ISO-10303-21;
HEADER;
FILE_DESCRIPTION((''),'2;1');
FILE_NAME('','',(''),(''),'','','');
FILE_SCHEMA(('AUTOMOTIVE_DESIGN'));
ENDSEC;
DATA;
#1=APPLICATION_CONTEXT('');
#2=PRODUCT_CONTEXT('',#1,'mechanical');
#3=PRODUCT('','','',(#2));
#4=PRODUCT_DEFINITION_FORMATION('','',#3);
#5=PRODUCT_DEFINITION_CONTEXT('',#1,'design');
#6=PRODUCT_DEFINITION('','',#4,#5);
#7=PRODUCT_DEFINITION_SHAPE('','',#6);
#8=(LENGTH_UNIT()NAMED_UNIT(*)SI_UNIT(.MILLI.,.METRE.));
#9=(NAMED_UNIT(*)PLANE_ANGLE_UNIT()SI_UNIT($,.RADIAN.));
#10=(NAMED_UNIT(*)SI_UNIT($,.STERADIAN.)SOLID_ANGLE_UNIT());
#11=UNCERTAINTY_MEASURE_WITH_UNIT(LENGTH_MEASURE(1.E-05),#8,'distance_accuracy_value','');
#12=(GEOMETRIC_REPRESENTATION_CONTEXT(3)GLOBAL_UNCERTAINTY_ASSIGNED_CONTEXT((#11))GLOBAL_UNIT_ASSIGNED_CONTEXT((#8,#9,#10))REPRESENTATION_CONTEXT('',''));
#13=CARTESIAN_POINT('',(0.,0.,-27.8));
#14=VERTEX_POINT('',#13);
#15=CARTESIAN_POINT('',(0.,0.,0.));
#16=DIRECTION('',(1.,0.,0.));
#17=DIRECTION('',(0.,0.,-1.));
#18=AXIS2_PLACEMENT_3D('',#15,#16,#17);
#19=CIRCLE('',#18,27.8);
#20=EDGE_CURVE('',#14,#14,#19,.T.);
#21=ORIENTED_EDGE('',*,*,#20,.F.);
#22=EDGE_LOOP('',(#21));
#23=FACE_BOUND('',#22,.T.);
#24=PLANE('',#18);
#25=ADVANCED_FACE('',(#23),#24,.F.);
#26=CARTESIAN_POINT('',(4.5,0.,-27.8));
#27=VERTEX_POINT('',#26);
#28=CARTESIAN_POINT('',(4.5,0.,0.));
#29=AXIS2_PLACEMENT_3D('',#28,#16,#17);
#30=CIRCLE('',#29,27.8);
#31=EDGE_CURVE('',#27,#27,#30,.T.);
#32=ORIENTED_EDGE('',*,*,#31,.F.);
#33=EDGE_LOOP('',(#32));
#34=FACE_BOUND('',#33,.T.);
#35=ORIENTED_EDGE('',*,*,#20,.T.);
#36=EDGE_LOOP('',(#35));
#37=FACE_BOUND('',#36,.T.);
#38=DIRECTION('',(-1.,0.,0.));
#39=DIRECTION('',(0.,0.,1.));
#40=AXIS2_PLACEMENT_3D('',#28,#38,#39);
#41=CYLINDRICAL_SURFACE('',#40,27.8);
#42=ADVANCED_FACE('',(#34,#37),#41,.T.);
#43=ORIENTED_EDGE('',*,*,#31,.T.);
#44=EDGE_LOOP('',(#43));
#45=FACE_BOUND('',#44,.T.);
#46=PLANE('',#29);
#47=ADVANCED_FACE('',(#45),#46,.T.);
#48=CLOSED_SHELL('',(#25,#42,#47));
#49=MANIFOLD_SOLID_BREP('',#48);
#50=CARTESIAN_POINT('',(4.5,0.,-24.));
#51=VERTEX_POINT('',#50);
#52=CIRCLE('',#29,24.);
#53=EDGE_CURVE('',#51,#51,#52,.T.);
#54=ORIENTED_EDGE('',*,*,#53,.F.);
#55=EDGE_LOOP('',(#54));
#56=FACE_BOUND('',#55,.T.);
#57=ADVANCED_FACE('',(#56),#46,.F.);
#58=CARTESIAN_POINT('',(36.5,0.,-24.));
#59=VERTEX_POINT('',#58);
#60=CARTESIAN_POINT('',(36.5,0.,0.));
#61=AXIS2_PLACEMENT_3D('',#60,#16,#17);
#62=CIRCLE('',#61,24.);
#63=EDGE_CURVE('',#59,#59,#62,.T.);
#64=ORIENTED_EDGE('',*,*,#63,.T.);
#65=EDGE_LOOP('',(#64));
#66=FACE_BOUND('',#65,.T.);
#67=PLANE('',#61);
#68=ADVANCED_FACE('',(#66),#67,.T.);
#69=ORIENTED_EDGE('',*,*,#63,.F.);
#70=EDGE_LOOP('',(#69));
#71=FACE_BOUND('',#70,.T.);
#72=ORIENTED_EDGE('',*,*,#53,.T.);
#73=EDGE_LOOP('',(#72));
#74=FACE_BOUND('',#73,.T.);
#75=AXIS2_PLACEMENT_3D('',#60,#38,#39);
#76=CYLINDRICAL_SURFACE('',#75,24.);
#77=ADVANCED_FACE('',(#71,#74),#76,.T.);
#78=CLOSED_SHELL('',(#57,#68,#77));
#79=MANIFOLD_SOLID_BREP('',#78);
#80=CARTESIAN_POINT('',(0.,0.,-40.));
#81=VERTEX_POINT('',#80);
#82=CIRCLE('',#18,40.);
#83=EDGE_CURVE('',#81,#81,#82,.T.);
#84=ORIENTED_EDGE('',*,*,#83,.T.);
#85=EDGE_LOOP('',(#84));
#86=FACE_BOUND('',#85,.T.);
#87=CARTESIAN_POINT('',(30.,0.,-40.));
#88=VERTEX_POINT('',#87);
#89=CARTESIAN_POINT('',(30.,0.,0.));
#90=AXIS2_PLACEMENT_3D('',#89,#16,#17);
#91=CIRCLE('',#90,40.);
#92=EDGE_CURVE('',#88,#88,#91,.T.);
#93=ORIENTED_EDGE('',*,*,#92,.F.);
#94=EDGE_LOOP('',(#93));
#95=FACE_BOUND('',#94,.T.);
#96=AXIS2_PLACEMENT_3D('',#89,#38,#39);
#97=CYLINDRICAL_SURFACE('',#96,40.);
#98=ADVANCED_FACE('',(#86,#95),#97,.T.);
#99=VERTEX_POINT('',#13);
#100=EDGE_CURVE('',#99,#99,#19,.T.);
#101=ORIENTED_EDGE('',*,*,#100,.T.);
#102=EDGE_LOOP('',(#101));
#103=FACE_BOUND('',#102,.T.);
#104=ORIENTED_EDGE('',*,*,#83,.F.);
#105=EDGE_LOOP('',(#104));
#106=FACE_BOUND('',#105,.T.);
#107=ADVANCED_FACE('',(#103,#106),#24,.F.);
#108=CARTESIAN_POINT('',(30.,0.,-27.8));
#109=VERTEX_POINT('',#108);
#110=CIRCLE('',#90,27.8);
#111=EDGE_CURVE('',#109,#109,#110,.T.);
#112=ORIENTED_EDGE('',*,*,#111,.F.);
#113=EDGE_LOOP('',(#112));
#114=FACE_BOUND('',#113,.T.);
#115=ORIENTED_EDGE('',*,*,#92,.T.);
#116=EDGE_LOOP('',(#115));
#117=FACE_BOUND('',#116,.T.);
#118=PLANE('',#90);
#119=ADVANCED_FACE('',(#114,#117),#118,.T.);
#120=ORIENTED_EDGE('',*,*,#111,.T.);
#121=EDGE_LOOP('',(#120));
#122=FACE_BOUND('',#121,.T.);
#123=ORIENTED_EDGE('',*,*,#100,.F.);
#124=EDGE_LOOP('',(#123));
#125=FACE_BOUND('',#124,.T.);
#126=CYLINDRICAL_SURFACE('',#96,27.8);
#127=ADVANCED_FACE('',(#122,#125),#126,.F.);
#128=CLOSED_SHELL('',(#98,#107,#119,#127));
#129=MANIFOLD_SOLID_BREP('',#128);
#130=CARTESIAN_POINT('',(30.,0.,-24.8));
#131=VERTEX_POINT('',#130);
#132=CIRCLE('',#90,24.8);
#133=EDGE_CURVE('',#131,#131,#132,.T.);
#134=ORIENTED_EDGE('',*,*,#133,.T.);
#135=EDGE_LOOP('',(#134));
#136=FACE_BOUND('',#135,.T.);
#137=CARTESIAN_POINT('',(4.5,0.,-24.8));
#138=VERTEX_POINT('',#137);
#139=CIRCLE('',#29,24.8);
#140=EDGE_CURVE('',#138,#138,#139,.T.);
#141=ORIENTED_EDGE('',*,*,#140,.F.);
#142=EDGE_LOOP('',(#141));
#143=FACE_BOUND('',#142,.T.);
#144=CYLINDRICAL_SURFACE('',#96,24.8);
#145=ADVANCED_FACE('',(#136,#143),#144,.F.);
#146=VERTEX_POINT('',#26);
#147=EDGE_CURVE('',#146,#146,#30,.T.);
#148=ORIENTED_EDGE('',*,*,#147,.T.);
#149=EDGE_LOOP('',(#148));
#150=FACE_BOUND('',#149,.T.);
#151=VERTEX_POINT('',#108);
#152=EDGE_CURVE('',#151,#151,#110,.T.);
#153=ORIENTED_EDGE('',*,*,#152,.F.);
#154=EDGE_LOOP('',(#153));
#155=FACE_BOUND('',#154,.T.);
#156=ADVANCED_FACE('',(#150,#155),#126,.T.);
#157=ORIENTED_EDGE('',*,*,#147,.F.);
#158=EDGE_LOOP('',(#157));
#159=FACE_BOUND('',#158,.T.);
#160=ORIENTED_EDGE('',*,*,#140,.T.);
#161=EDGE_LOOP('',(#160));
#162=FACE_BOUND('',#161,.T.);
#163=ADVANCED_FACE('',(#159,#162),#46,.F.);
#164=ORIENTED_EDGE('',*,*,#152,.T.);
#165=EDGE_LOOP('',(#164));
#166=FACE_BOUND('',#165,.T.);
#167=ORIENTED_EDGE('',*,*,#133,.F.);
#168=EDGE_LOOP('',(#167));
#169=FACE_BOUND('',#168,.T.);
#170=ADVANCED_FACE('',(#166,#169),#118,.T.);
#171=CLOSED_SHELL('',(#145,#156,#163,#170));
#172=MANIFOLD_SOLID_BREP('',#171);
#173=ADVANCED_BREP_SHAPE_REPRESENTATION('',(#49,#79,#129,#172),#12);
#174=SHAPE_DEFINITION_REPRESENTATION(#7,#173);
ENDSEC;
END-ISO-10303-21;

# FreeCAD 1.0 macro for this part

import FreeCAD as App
import Part
import Sketcher
Q = App.Units.Quantity

doc = App.newDocument("Part")
body = doc.addObject("PartDesign::Body", "Body")

sketch1 = body.newObject("Sketcher::SketchObject", "Sketch")
sketch1.AttachmentSupport = (doc.getObject("YZ_Plane"), [""])
sketch1.MapMode = "FlatFace"
sketch1.addGeometry(Part.Circle(App.Vector(0, 0, 0), App.Vector(0, 0, 1), 27.8), False)
sketch1.addConstraint([
    Sketcher.Constraint("Coincident", 0, 3, -1, 1),
    Sketcher.Constraint("Diameter", 0, Q("55.6 mm")),
])
pad1 = body.newObject("PartDesign::Pad", "Pad")
pad1.Profile = sketch1
pad1.Length = 4.5
body2 = doc.addObject("PartDesign::Body", "Body001")

sketch2 = body2.newObject("Sketcher::SketchObject", "Sketch001")
sketch2.AttachmentSupport = (doc.getObject("YZ_Plane001"), [""])
sketch2.MapMode = "FlatFace"
sketch2.AttachmentOffset = App.Placement(App.Vector(0, 0, 4.5), App.Rotation())
sketch2.addGeometry([
    Part.Circle(App.Vector(0, 0, 0), App.Vector(0, 0, 1), 27.8),
    Part.Circle(App.Vector(0, 0, 0), App.Vector(0, 0, 1), 24.8),
], False)
sketch2.addConstraint([
    Sketcher.Constraint("Coincident", 0, 3, -1, 1),
    Sketcher.Constraint("Coincident", 1, 3, -1, 1),
    Sketcher.Constraint("Diameter", 0, Q("55.6 mm")),
    Sketcher.Constraint("Diameter", 1, Q("49.6 mm")),
])
pad2 = body2.newObject("PartDesign::Pad", "Pad001")
pad2.Profile = sketch2
pad2.Length = 25.5
body3 = doc.addObject("PartDesign::Body", "Body002")

sketch3 = body3.newObject("Sketcher::SketchObject", "Sketch002")
sketch3.AttachmentSupport = (doc.getObject("YZ_Plane002"), [""])
sketch3.MapMode = "FlatFace"
sketch3.AttachmentOffset = App.Placement(App.Vector(0, 0, 4.5), App.Rotation())
sketch3.addGeometry(Part.Circle(App.Vector(0, 0, 0), App.Vector(0, 0, 1), 24), False)
sketch3.addConstraint([
    Sketcher.Constraint("Coincident", 0, 3, -1, 1),
    Sketcher.Constraint("Diameter", 0, Q("48 mm")),
])
pad3 = body3.newObject("PartDesign::Pad", "Pad002")
pad3.Profile = sketch3
pad3.Length = 32
body4 = doc.addObject("PartDesign::Body", "Body003")

sketch4 = body4.newObject("Sketcher::SketchObject", "Sketch003")
sketch4.AttachmentSupport = (doc.getObject("YZ_Plane003"), [""])
sketch4.MapMode = "FlatFace"
sketch4.addGeometry([
    Part.Circle(App.Vector(0, 0, 0), App.Vector(0, 0, 1), 40),
    Part.Circle(App.Vector(0, 0, 0), App.Vector(0, 0, 1), 27.8),
], False)
sketch4.addConstraint([
    Sketcher.Constraint("Coincident", 0, 3, -1, 1),
    Sketcher.Constraint("Coincident", 1, 3, -1, 1),
    Sketcher.Constraint("Diameter", 0, Q("80 mm")),
    Sketcher.Constraint("Diameter", 1, Q("55.6 mm")),
])
pad4 = body4.newObject("PartDesign::Pad", "Pad003")
pad4.Profile = sketch4
pad4.Length = 30

doc.recompute()
